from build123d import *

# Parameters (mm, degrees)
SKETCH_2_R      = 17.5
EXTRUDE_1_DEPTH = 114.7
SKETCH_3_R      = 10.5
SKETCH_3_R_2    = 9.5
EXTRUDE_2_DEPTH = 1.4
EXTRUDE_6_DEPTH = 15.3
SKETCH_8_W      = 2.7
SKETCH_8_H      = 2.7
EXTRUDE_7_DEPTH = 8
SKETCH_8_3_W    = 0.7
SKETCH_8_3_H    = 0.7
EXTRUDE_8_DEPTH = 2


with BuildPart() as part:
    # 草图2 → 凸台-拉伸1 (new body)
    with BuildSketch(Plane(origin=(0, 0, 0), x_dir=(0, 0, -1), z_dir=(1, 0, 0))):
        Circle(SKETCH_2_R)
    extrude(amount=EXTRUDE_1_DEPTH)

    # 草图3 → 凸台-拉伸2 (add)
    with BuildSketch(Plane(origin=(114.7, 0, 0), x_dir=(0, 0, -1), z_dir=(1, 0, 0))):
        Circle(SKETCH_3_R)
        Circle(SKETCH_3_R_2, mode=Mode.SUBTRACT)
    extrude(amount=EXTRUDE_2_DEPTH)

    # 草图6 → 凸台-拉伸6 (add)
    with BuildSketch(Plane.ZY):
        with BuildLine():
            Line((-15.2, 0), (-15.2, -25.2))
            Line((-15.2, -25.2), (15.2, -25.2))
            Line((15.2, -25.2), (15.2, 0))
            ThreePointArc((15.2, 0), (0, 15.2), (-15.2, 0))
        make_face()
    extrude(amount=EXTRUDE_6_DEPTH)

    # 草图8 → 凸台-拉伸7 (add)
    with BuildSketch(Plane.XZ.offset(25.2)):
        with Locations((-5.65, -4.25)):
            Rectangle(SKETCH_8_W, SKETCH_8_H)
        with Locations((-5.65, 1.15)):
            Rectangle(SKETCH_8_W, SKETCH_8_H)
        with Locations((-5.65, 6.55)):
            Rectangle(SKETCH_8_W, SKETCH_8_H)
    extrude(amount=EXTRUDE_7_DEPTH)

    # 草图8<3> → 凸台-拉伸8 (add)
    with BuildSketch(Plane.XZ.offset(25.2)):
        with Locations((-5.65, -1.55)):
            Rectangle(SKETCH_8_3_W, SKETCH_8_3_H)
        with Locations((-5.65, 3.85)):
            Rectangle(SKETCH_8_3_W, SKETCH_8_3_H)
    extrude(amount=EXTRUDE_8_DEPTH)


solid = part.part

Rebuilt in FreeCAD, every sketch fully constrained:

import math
import FreeCAD as App
import Part
import Sketcher
from FreeCAD import Vector
Q = App.Units.Quantity

doc = App.newDocument("Part")
body = doc.addObject("PartDesign::Body", "Body")

# Sketch on YZ plane
sketch1 = body.newObject("Sketcher::SketchObject", "Sketch")
sketch1.AttachmentSupport = (doc.getObject("YZ_Plane"), [""])
sketch1.MapMode = "FlatFace"
sketch1.addGeometry(Part.Circle(Vector(0, 0, 0), Vector(0, 0, 1), 17.5), False)
sketch1.addConstraint([
    Sketcher.Constraint("Coincident", 0, 3, -1, 1),
    Sketcher.Constraint("Diameter", 0, Q("35 mm")),
])
pad1 = body.newObject("PartDesign::Pad", "Pad")
pad1.Profile = sketch1
pad1.Length = 114.7

# Sketch on YZ plane
sketch2 = body.newObject("Sketcher::SketchObject", "Sketch001")
sketch2.AttachmentSupport = (doc.getObject("YZ_Plane"), [""])
sketch2.MapMode = "FlatFace"
sketch2.AttachmentOffset = App.Placement(Vector(0, 0, 114.7), App.Rotation())
sketch2.addGeometry([
    Part.Circle(Vector(0, 0, 0), Vector(0, 0, 1), 10.5),
    Part.Circle(Vector(0, 0, 0), Vector(0, 0, 1), 9.5),
], False)
sketch2.addConstraint([
    Sketcher.Constraint("Coincident", 0, 3, -1, 1),
    Sketcher.Constraint("Coincident", 1, 3, -1, 1),
    Sketcher.Constraint("Diameter", 0, Q("21 mm")),
    Sketcher.Constraint("Diameter", 1, Q("19 mm")),
])
pad2 = body.newObject("PartDesign::Pad", "Pad001")
pad2.Profile = sketch2
pad2.Length = 1.4

# Sketch on YZ plane
sketch3 = body.newObject("Sketcher::SketchObject", "Sketch002")
sketch3.AttachmentSupport = (doc.getObject("YZ_Plane"), [""])
sketch3.MapMode = "FlatFace"
sketch3.addGeometry([
    Part.LineSegment(Vector(0, -15.2, 0), Vector(-25.2, -15.2, 0)),
    Part.LineSegment(Vector(-25.2, -15.2, 0), Vector(-25.2, 15.2, 0)),
    Part.LineSegment(Vector(-25.2, 15.2, 0), Vector(0, 15.2, 0)),
    Part.ArcOfCircle(Part.Circle(Vector(0, 0, 0), Vector(0, 0, 1), 15.2), math.radians(-90), math.radians(90)),
], False)
sketch3.addConstraint([
    Sketcher.Constraint("Coincident", 0, 2, 1, 1),
    Sketcher.Constraint("Coincident", 1, 2, 2, 1),
    Sketcher.Constraint("Tangent", 2, 2, 3, 2),
    Sketcher.Constraint("Tangent", 3, 1, 0, 1),
    Sketcher.Constraint("Horizontal", 0),
    Sketcher.Constraint("Vertical", 1),
    Sketcher.Constraint("Horizontal", 2),
    Sketcher.Constraint("Coincident", 3, 3, -1, 1),
    Sketcher.Constraint("Radius", 3, Q("15.2 mm")),
    Sketcher.Constraint("DistanceX", 0, 2, 0, 1, Q("25.2 mm")),
])
pad3 = body.newObject("PartDesign::Pad", "Pad002")
pad3.Profile = sketch3
pad3.Length = 15.3
pad3.Reversed = True

# Sketch on XZ plane
sketch4 = body.newObject("Sketcher::SketchObject", "Sketch003")
sketch4.AttachmentSupport = (doc.getObject("XZ_Plane"), [""])
sketch4.MapMode = "FlatFace"
sketch4.AttachmentOffset = App.Placement(Vector(0, 0, 25.2), App.Rotation())
sketch4.addGeometry([
    Part.LineSegment(Vector(-7, -2.9, 0), Vector(-7, -5.6, 0)),  # 0
    Part.LineSegment(Vector(-7, -5.6, 0), Vector(-4.3, -5.6, 0)),  # 1
    Part.LineSegment(Vector(-4.3, -5.6, 0), Vector(-4.3, -2.9, 0)),  # 2
    Part.LineSegment(Vector(-4.3, -2.9, 0), Vector(-7, -2.9, 0)),  # 3
    Part.LineSegment(Vector(-7, 2.5, 0), Vector(-7, -0.2, 0)),  # 4
    Part.LineSegment(Vector(-7, -0.2, 0), Vector(-4.3, -0.2, 0)),  # 5
    Part.LineSegment(Vector(-4.3, -0.2, 0), Vector(-4.3, 2.5, 0)),  # 6
    Part.LineSegment(Vector(-4.3, 2.5, 0), Vector(-7, 2.5, 0)),  # 7
    Part.LineSegment(Vector(-7, 7.9, 0), Vector(-7, 5.2, 0)),  # 8
    Part.LineSegment(Vector(-7, 5.2, 0), Vector(-4.3, 5.2, 0)),  # 9
    Part.LineSegment(Vector(-4.3, 5.2, 0), Vector(-4.3, 7.9, 0)),  # 10
    Part.LineSegment(Vector(-4.3, 7.9, 0), Vector(-7, 7.9, 0)),  # 11
], False)
sketch4.addConstraint([
    Sketcher.Constraint("Coincident", 0, 2, 1, 1),
    Sketcher.Constraint("Coincident", 1, 2, 2, 1),
    Sketcher.Constraint("Coincident", 2, 2, 3, 1),
    Sketcher.Constraint("Coincident", 3, 2, 0, 1),
    Sketcher.Constraint("Coincident", 4, 2, 5, 1),
    Sketcher.Constraint("Coincident", 5, 2, 6, 1),
    Sketcher.Constraint("Coincident", 6, 2, 7, 1),
    Sketcher.Constraint("Coincident", 7, 2, 4, 1),
    Sketcher.Constraint("Coincident", 8, 2, 9, 1),
    Sketcher.Constraint("Coincident", 9, 2, 10, 1),
    Sketcher.Constraint("Coincident", 10, 2, 11, 1),
    Sketcher.Constraint("Coincident", 11, 2, 8, 1),
    Sketcher.Constraint("Vertical", 0),
    Sketcher.Constraint("Horizontal", 1),
    Sketcher.Constraint("Vertical", 2),
    Sketcher.Constraint("Horizontal", 3),
    Sketcher.Constraint("Vertical", 4),
    Sketcher.Constraint("Horizontal", 5),
    Sketcher.Constraint("Vertical", 6),
    Sketcher.Constraint("Horizontal", 7),
    Sketcher.Constraint("Vertical", 8),
    Sketcher.Constraint("Horizontal", 9),
    Sketcher.Constraint("Vertical", 10),
    Sketcher.Constraint("Horizontal", 11),
    Sketcher.Constraint("Vertical", 3, 2, 4, 2),
    Sketcher.Constraint("Vertical", 2, 2, 5, 2),
    Sketcher.Constraint("Vertical", 7, 2, 8, 2),
    Sketcher.Constraint("Vertical", 6, 2, 9, 2),
    Sketcher.Constraint("Equal", 11, 0),
    Sketcher.Constraint("Equal", 2, 4),
    Sketcher.Constraint("Equal", 6, 8),
    Sketcher.Constraint("DistanceX", 1, 1, 1, 2, Q("2.7 mm")),
    Sketcher.Constraint("DistanceX", 0, 2, -1, 1, Q("7 mm")),
    Sketcher.Constraint("DistanceY", 0, 2, -1, 1, Q("5.6 mm")),
    Sketcher.Constraint("DistanceY", 4, 2, -1, 1, Q("0.2 mm")),
    Sketcher.Constraint("DistanceY", -1, 1, 8, 2, Q("5.2 mm")),
])
pad4 = body.newObject("PartDesign::Pad", "Pad003")
pad4.Profile = sketch4
pad4.Length = 8

# Sketch on XZ plane
sketch5 = body.newObject("Sketcher::SketchObject", "Sketch004")
sketch5.AttachmentSupport = (doc.getObject("XZ_Plane"), [""])
sketch5.MapMode = "FlatFace"
sketch5.AttachmentOffset = App.Placement(Vector(0, 0, 25.2), App.Rotation())
sketch5.addGeometry([
    Part.LineSegment(Vector(-6, -1.2, 0), Vector(-6, -1.9, 0)),  # 0
    Part.LineSegment(Vector(-6, -1.9, 0), Vector(-5.3, -1.9, 0)),  # 1
    Part.LineSegment(Vector(-5.3, -1.9, 0), Vector(-5.3, -1.2, 0)),  # 2
    Part.LineSegment(Vector(-5.3, -1.2, 0), Vector(-6, -1.2, 0)),  # 3
    Part.LineSegment(Vector(-6, 4.2, 0), Vector(-6, 3.5, 0)),  # 4
    Part.LineSegment(Vector(-6, 3.5, 0), Vector(-5.3, 3.5, 0)),  # 5
    Part.LineSegment(Vector(-5.3, 3.5, 0), Vector(-5.3, 4.2, 0)),  # 6
    Part.LineSegment(Vector(-5.3, 4.2, 0), Vector(-6, 4.2, 0)),  # 7
], False)
sketch5.addConstraint([
    Sketcher.Constraint("Coincident", 0, 2, 1, 1),
    Sketcher.Constraint("Coincident", 1, 2, 2, 1),
    Sketcher.Constraint("Coincident", 2, 2, 3, 1),
    Sketcher.Constraint("Coincident", 3, 2, 0, 1),
    Sketcher.Constraint("Coincident", 4, 2, 5, 1),
    Sketcher.Constraint("Coincident", 5, 2, 6, 1),
    Sketcher.Constraint("Coincident", 6, 2, 7, 1),
    Sketcher.Constraint("Coincident", 7, 2, 4, 1),
    Sketcher.Constraint("Vertical", 0),
    Sketcher.Constraint("Horizontal", 1),
    Sketcher.Constraint("Vertical", 2),
    Sketcher.Constraint("Horizontal", 3),
    Sketcher.Constraint("Vertical", 4),
    Sketcher.Constraint("Horizontal", 5),
    Sketcher.Constraint("Vertical", 6),
    Sketcher.Constraint("Horizontal", 7),
    Sketcher.Constraint("Vertical", 3, 2, 4, 2),
    Sketcher.Constraint("Vertical", 2, 2, 5, 2),
    Sketcher.Constraint("Equal", 7, 0),
    Sketcher.Constraint("Equal", 2, 4),
    Sketcher.Constraint("DistanceX", 1, 1, 1, 2, Q("0.7 mm")),
    Sketcher.Constraint("DistanceX", 0, 2, -1, 1, Q("6 mm")),
    Sketcher.Constraint("DistanceY", 0, 2, -1, 1, Q("1.9 mm")),
    Sketcher.Constraint("DistanceY", -1, 1, 4, 2, Q("3.5 mm")),
])
pad5 = body.newObject("PartDesign::Pad", "Pad004")
pad5.Profile = sketch5
pad5.Length = 2

doc.recompute()
